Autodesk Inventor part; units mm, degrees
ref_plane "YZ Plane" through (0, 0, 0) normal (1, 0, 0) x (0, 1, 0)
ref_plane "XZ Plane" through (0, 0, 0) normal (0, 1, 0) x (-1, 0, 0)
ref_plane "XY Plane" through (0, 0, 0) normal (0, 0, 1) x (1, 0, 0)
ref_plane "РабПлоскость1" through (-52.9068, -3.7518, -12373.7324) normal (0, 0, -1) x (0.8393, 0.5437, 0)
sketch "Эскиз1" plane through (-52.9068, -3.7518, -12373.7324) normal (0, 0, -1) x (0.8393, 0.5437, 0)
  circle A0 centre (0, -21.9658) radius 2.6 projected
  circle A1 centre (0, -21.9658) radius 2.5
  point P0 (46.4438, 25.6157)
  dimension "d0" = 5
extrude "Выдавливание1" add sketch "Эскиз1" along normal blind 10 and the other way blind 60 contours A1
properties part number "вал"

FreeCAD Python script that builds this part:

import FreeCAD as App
import Part
import Sketcher
from FreeCAD import Vector
Q = App.Units.Quantity

doc = App.newDocument("Part")
body = doc.addObject("PartDesign::Body", "Body")

sketch1 = body.newObject("Sketcher::SketchObject", "Sketch")
sketch1.AttachmentSupport = (doc.getObject("XY_Plane"), [""])
sketch1.MapMode = "FlatFace"
sketch1.AttachmentOffset = App.Placement(Vector(0, 0, -12373.7324), App.Rotation())
sketch1.addGeometry(Part.Circle(Vector(-64.849401, 14.683781, 0), Vector(0, 0, 1), 2.5), False)
sketch1.addConstraint([
    Sketcher.Constraint("Diameter", 0, Q("5 mm")),
    Sketcher.Constraint("DistanceX", 0, 3, -1, 1, Q("64.8494 mm")),
    Sketcher.Constraint("DistanceY", -1, 1, 0, 3, Q("14.6838 mm")),
])
pad1 = body.newObject("PartDesign::Pad", "Pad")
pad1.Profile = sketch1
pad1.Type = "TwoLengths"
pad1.Length = 10
pad1.Length2 = 60
pad1.Reversed = True

doc.recompute()
